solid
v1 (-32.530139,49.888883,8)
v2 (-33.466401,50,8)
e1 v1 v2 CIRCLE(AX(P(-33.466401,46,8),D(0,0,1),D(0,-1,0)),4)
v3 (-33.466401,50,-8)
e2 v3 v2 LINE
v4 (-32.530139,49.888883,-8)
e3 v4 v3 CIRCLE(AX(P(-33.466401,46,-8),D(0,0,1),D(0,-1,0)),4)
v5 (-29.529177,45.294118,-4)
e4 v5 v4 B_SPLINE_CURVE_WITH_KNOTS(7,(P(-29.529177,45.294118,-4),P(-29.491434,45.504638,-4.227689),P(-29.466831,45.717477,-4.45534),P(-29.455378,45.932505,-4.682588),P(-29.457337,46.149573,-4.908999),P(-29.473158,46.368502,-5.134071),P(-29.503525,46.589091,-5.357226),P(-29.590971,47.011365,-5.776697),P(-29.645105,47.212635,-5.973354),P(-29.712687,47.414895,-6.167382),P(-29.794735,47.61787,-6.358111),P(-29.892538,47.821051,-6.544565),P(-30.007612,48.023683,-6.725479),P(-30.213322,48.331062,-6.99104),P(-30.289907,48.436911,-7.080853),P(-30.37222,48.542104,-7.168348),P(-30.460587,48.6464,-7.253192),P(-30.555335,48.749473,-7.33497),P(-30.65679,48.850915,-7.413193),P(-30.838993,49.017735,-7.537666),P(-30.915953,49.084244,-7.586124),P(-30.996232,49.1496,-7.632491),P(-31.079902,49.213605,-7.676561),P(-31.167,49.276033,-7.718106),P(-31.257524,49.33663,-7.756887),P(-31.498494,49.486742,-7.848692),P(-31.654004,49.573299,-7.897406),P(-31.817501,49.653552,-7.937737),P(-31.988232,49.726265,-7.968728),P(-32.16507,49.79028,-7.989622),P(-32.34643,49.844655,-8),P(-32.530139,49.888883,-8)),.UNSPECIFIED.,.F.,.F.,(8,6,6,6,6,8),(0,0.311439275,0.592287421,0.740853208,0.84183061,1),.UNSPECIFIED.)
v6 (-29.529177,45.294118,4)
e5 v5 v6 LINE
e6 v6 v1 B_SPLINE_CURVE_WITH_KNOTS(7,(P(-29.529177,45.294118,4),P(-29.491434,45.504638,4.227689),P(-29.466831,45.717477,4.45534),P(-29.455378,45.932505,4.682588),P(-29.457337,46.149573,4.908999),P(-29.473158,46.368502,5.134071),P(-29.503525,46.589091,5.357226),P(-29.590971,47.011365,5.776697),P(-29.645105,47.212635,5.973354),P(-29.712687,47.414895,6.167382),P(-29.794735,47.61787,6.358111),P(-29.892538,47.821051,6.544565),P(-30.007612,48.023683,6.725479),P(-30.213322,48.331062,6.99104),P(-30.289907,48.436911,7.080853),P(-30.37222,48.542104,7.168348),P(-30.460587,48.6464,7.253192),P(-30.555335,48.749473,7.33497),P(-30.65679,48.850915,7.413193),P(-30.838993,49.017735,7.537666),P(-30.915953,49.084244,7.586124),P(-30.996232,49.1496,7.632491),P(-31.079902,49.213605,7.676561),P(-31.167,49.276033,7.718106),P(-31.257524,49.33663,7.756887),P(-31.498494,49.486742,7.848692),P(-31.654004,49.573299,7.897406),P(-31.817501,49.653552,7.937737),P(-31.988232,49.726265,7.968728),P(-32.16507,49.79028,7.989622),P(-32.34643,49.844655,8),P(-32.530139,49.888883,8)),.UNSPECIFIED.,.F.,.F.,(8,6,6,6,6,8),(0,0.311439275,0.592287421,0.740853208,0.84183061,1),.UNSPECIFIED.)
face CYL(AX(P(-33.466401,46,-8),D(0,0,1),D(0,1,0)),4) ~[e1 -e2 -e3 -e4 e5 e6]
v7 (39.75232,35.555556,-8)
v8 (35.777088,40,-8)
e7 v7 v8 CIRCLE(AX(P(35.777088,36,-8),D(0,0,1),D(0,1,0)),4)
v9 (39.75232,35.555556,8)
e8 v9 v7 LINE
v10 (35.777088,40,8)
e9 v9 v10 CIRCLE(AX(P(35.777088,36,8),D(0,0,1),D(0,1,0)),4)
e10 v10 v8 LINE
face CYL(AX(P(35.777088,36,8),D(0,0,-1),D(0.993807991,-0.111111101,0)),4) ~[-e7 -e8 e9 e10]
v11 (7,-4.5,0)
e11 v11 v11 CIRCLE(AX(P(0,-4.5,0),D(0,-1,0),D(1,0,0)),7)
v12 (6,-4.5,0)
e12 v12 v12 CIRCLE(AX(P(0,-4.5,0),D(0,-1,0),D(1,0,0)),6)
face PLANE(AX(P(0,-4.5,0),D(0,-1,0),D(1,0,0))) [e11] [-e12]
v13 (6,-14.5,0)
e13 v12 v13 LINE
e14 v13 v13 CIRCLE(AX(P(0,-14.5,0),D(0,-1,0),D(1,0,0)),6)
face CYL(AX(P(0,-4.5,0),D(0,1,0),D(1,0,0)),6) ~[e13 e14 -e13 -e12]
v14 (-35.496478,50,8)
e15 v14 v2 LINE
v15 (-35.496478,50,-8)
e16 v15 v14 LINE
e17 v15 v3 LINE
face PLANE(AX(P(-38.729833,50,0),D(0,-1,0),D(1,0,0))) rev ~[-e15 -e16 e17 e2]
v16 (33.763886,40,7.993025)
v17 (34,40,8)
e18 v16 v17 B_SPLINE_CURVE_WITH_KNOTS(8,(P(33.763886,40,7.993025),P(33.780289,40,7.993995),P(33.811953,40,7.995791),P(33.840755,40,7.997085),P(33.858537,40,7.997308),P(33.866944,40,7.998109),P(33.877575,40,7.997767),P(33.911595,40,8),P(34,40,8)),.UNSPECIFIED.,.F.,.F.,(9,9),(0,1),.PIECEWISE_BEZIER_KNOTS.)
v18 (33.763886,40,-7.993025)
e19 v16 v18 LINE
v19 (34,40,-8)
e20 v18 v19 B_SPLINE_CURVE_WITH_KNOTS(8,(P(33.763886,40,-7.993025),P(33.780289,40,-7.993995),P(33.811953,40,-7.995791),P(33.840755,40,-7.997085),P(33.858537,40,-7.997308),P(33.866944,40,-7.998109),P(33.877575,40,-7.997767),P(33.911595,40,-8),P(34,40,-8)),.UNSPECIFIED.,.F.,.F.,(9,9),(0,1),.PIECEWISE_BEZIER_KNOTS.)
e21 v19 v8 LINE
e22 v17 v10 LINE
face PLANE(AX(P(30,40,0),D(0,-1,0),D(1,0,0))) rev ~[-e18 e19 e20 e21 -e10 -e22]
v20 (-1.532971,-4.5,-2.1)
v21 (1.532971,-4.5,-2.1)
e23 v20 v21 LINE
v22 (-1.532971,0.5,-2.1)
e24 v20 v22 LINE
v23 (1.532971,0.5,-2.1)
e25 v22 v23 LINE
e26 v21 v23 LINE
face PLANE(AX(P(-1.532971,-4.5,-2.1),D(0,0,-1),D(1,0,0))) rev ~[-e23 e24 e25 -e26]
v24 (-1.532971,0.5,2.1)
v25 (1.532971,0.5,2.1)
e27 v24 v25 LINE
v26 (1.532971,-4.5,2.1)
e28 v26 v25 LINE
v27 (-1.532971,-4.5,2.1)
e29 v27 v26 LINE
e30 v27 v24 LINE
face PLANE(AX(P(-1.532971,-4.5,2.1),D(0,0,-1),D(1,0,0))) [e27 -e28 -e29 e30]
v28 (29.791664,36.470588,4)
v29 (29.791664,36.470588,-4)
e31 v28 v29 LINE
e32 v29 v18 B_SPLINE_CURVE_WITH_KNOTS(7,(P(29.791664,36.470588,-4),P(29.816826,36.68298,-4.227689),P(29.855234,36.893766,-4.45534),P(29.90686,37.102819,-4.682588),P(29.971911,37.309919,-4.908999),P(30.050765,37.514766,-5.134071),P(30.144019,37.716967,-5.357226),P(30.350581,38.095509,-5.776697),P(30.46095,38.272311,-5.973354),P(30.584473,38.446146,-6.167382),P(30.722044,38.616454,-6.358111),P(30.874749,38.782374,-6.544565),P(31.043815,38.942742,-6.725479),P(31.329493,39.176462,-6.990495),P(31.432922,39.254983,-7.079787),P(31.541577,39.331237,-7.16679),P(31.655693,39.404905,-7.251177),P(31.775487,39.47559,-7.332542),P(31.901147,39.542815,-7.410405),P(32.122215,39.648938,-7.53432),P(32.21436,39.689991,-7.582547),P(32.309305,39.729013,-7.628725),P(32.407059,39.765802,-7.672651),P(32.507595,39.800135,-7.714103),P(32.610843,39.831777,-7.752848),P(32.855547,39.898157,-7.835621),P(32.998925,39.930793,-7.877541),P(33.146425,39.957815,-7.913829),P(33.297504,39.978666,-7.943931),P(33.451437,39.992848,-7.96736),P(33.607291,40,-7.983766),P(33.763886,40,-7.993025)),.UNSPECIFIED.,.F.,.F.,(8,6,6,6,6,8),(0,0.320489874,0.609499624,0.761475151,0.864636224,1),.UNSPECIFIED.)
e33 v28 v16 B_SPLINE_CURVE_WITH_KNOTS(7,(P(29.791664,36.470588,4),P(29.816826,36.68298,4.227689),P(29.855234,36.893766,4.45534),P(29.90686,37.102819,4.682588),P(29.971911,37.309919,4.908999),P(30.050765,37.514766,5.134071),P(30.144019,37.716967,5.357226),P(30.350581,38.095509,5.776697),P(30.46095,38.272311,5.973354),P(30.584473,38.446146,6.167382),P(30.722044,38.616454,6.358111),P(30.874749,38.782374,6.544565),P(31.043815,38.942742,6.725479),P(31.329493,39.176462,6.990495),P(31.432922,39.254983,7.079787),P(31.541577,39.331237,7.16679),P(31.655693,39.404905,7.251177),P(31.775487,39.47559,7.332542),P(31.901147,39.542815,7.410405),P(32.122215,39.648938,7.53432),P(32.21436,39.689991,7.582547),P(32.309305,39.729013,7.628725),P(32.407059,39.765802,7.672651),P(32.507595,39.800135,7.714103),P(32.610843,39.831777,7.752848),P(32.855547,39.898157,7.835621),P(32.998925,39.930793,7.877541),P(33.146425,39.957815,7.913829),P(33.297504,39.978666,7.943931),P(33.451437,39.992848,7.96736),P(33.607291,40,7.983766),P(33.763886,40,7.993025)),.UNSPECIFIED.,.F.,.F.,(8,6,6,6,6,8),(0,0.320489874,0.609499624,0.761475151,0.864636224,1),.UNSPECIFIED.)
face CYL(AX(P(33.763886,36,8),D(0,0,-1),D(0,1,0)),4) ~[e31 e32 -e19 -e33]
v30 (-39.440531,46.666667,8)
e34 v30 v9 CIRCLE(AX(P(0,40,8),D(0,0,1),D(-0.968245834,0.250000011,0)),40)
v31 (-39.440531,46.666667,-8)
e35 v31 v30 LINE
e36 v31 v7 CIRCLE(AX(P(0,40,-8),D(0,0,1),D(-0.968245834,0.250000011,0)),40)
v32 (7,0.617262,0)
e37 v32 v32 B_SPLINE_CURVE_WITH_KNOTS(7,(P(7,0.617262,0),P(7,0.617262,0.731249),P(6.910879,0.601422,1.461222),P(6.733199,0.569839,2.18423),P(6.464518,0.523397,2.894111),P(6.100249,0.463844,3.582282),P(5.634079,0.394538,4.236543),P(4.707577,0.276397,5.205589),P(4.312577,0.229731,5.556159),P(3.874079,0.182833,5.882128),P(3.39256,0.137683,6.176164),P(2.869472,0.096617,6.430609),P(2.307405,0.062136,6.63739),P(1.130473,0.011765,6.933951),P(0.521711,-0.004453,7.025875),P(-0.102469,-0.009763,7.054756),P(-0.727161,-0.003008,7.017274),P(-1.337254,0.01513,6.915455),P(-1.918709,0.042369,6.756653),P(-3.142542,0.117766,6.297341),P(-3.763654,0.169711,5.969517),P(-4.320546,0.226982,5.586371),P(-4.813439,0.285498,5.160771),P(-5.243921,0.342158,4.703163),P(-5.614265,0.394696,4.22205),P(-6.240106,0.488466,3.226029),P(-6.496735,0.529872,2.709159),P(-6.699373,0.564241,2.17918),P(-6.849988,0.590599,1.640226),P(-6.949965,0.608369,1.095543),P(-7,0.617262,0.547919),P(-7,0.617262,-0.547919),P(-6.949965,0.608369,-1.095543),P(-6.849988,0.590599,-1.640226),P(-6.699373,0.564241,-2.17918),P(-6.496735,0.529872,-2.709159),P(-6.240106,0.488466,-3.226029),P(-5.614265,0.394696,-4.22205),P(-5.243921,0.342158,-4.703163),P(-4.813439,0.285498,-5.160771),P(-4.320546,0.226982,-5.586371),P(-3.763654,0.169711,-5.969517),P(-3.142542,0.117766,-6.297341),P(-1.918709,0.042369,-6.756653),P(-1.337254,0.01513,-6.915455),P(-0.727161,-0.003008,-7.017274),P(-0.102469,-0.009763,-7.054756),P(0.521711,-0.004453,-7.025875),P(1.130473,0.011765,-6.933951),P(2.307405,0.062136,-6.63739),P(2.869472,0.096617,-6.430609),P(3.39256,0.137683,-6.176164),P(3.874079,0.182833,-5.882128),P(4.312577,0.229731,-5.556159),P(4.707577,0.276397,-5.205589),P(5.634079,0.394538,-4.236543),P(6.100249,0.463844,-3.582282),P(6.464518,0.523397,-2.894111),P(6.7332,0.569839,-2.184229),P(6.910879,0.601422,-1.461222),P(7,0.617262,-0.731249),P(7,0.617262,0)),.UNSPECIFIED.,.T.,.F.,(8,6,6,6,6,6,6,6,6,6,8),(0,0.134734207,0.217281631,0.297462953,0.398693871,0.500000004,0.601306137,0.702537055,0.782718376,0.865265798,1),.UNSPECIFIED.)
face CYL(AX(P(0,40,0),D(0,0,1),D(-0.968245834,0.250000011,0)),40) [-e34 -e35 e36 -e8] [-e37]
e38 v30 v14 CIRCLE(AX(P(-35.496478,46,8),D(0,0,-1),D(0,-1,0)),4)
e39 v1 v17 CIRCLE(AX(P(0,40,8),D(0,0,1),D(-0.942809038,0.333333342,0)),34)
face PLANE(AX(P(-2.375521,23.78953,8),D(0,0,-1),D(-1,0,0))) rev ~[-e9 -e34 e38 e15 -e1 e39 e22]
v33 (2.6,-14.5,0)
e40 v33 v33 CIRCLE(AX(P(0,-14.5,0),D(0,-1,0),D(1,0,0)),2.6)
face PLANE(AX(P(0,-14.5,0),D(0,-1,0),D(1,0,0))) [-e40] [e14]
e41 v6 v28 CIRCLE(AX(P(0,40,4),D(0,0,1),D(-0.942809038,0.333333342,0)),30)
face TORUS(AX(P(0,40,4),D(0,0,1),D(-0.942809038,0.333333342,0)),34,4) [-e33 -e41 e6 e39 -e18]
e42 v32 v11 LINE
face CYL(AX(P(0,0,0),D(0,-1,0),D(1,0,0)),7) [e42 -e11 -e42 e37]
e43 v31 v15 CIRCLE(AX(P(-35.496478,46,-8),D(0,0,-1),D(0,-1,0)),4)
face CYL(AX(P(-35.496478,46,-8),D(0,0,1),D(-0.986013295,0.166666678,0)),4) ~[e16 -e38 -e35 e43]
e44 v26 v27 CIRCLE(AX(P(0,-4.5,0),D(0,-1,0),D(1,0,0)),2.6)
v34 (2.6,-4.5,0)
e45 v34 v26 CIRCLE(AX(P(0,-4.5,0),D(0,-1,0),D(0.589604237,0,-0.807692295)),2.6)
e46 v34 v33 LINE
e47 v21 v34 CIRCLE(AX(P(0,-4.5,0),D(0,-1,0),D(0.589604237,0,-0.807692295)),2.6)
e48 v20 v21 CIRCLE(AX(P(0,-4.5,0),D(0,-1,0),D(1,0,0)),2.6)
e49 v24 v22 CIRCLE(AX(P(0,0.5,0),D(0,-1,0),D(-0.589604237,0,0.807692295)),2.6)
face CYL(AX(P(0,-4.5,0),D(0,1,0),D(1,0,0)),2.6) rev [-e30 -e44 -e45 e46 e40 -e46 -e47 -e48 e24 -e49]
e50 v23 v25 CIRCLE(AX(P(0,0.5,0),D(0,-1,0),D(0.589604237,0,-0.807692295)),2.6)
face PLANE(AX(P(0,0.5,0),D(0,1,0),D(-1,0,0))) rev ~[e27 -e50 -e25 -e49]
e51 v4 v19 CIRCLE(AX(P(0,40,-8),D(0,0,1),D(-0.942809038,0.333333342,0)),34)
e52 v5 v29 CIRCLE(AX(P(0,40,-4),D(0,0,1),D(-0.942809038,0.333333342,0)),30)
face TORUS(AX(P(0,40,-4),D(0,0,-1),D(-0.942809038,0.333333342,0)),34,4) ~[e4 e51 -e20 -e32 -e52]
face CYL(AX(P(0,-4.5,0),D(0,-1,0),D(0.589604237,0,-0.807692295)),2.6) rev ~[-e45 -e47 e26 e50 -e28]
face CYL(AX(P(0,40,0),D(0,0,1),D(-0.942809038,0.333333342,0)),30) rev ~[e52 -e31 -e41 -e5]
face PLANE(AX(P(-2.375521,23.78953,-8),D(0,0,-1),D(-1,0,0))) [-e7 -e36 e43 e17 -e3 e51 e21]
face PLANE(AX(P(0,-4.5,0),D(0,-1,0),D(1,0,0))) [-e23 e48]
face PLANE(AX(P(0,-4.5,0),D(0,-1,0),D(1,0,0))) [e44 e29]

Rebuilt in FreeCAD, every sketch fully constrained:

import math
import FreeCAD as App
import Part
import Sketcher
Q = App.Units.Quantity


def edges_at(feature, points):
    """Names of the edges that pass closest to the given points."""
    edges = feature.Shape.Edges
    near = lambda p: min(range(len(edges)), key=lambda i: edges[i].distToShape(Part.Vertex(*p))[0])
    return sorted({f"Edge{near(p) + 1}" for p in points})

doc = App.newDocument("Part")
body = doc.addObject("PartDesign::Body", "Body")

# Sketch on XY plane
sketch1 = body.newObject("Sketcher::SketchObject", "Sketch")
sketch1.AttachmentSupport = (doc.getObject("XY_Plane"), [""])
sketch1.MapMode = "FlatFace"
sketch1.addGeometry(Part.ArcOfCircle(Part.Circle(App.Vector(0, 40, 0), App.Vector(0, 0, 1), 30), math.radians(161), math.radians(360)), False)
sketch1.addGeometry(Part.LineSegment(App.Vector(-28, 50, 0), App.Vector(-39, 50, 0)), False)
sketch1.addGeometry(Part.ArcOfCircle(Part.Circle(App.Vector(0, 40, 0), App.Vector(0, 0, 1), 40), math.radians(166), math.radians(360)), False)
sketch1.addGeometry(Part.LineSegment(App.Vector(40, 40, 0), App.Vector(30, 40, 0)), False)
sketch1.addConstraint(Sketcher.Constraint("Coincident", 0, 1, 1, 1))
sketch1.addConstraint(Sketcher.Constraint("Coincident", 1, 2, 2, 1))
sketch1.addConstraint(Sketcher.Constraint("Coincident", 2, 2, 3, 1))
sketch1.addConstraint(Sketcher.Constraint("Coincident", 3, 2, 0, 2))
sketch1.addConstraint(Sketcher.Constraint("Horizontal", 1))
sketch1.addConstraint(Sketcher.Constraint("Horizontal", 3))
sketch1.addConstraint(Sketcher.Constraint("Coincident", 2, 3, 0, 3))
sketch1.addConstraint(Sketcher.Constraint("PointOnObject", 0, 3, -2))
sketch1.addConstraint(Sketcher.Constraint("Horizontal", 0, 3, 2, 2))
sketch1.addConstraint(Sketcher.Constraint("Radius", 0, Q("30 mm")))
sketch1.addConstraint(Sketcher.Constraint("Radius", 2, Q("40 mm")))
sketch1.addConstraint(Sketcher.Constraint("DistanceY", -1, 1, 0, 3, Q("40 mm")))
sketch1.addConstraint(Sketcher.Constraint("DistanceY", -1, 1, 0, 1, Q("50 mm")))
pad1 = body.newObject("PartDesign::Pad", "Pad")
pad1.Profile = sketch1
pad1.Length = 16
pad1.Midplane = True

# Sketch on XZ plane
sketch2 = body.newObject("Sketcher::SketchObject", "Sketch001")
sketch2.AttachmentSupport = (doc.getObject("XZ_Plane"), [""])
sketch2.MapMode = "FlatFace"
sketch2.addGeometry(Part.Circle(App.Vector(0, 0, 0), App.Vector(0, 0, 1), 7), False)
sketch2.addConstraint(Sketcher.Constraint("Coincident", 0, 3, -1, 1))
sketch2.addConstraint(Sketcher.Constraint("Diameter", 0, Q("14 mm")))
pad2 = body.newObject("PartDesign::Pad", "Pad001")
pad2.Profile = sketch2
pad2.Length = 9
pad2.Midplane = True

# Sketch on XZ plane
sketch3 = body.newObject("Sketcher::SketchObject", "Sketch002")
sketch3.AttachmentSupport = (doc.getObject("XZ_Plane"), [""])
sketch3.MapMode = "FlatFace"
sketch3.AttachmentOffset = App.Placement(App.Vector(0, 0, 4.5), App.Rotation())
sketch3.addGeometry(Part.LineSegment(App.Vector(1.5, 2.1, 0), App.Vector(-1.5, 2.1, 0)), False)
sketch3.addGeometry(Part.ArcOfCircle(Part.Circle(App.Vector(0, 0, 0), App.Vector(0, 0, 1), 2.6), math.radians(126), math.radians(234)), False)
sketch3.addGeometry(Part.LineSegment(App.Vector(-1.5, -2.1, 0), App.Vector(1.5, -2.1, 0)), False)
sketch3.addGeometry(Part.ArcOfCircle(Part.Circle(App.Vector(0, 0, 0), App.Vector(0, 0, 1), 2.6), math.radians(-54), math.radians(54)), False)
sketch3.addConstraint(Sketcher.Constraint("Coincident", 0, 2, 1, 1))
sketch3.addConstraint(Sketcher.Constraint("Coincident", 1, 2, 2, 1))
sketch3.addConstraint(Sketcher.Constraint("Coincident", 2, 2, 3, 1))
sketch3.addConstraint(Sketcher.Constraint("Coincident", 3, 2, 0, 1))
sketch3.addConstraint(Sketcher.Constraint("Horizontal", 0))
sketch3.addConstraint(Sketcher.Constraint("Horizontal", 2))
sketch3.addConstraint(Sketcher.Constraint("Coincident", 1, 3, -1, 1))
sketch3.addConstraint(Sketcher.Constraint("Coincident", 3, 3, -1, 1))
sketch3.addConstraint(Sketcher.Constraint("Equal", 1, 3))
sketch3.addConstraint(Sketcher.Constraint("Vertical", 0, 2, 1, 2))
sketch3.addConstraint(Sketcher.Constraint("Radius", 1, Q("2.6 mm")))
sketch3.addConstraint(Sketcher.Constraint("DistanceY", -1, 1, 0, 2, Q("2.1 mm")))
pocket1 = body.newObject("PartDesign::Pocket", "Pocket")
pocket1.Profile = sketch3
pocket1.Length = 5

# Sketch on XZ plane
sketch4 = body.newObject("Sketcher::SketchObject", "Sketch003")
sketch4.AttachmentSupport = (doc.getObject("XZ_Plane"), [""])
sketch4.MapMode = "FlatFace"
sketch4.AttachmentOffset = App.Placement(App.Vector(0, 0, 4.5), App.Rotation())
sketch4.addGeometry(Part.Circle(App.Vector(0, 0, 0), App.Vector(0, 0, 1), 6), False)
sketch4.addGeometry(Part.Circle(App.Vector(0, 0, 0), App.Vector(0, 0, 1), 2.6), False)
sketch4.addConstraint(Sketcher.Constraint("Coincident", 0, 3, -1, 1))
sketch4.addConstraint(Sketcher.Constraint("Coincident", 1, 3, -1, 1))
sketch4.addConstraint(Sketcher.Constraint("Diameter", 0, Q("12 mm")))
sketch4.addConstraint(Sketcher.Constraint("Diameter", 1, Q("5.2 mm")))
pad3 = body.newObject("PartDesign::Pad", "Pad002")
pad3.Profile = sketch4
pad3.Length = 10
doc.recompute()

fillet = body.newObject("PartDesign::Fillet", "Fillet")
fillet.Base = (pad3, edges_at(pad3, [
    (-28.284, 50, 0),
    (30, 40, 0),
    (-5.073, 10.432, -8),
    (-5.073, 10.432, 8),
    (-38.73, 50, 0),
    (40, 40, 0),
]))
fillet.Radius = 4

doc.recompute()
